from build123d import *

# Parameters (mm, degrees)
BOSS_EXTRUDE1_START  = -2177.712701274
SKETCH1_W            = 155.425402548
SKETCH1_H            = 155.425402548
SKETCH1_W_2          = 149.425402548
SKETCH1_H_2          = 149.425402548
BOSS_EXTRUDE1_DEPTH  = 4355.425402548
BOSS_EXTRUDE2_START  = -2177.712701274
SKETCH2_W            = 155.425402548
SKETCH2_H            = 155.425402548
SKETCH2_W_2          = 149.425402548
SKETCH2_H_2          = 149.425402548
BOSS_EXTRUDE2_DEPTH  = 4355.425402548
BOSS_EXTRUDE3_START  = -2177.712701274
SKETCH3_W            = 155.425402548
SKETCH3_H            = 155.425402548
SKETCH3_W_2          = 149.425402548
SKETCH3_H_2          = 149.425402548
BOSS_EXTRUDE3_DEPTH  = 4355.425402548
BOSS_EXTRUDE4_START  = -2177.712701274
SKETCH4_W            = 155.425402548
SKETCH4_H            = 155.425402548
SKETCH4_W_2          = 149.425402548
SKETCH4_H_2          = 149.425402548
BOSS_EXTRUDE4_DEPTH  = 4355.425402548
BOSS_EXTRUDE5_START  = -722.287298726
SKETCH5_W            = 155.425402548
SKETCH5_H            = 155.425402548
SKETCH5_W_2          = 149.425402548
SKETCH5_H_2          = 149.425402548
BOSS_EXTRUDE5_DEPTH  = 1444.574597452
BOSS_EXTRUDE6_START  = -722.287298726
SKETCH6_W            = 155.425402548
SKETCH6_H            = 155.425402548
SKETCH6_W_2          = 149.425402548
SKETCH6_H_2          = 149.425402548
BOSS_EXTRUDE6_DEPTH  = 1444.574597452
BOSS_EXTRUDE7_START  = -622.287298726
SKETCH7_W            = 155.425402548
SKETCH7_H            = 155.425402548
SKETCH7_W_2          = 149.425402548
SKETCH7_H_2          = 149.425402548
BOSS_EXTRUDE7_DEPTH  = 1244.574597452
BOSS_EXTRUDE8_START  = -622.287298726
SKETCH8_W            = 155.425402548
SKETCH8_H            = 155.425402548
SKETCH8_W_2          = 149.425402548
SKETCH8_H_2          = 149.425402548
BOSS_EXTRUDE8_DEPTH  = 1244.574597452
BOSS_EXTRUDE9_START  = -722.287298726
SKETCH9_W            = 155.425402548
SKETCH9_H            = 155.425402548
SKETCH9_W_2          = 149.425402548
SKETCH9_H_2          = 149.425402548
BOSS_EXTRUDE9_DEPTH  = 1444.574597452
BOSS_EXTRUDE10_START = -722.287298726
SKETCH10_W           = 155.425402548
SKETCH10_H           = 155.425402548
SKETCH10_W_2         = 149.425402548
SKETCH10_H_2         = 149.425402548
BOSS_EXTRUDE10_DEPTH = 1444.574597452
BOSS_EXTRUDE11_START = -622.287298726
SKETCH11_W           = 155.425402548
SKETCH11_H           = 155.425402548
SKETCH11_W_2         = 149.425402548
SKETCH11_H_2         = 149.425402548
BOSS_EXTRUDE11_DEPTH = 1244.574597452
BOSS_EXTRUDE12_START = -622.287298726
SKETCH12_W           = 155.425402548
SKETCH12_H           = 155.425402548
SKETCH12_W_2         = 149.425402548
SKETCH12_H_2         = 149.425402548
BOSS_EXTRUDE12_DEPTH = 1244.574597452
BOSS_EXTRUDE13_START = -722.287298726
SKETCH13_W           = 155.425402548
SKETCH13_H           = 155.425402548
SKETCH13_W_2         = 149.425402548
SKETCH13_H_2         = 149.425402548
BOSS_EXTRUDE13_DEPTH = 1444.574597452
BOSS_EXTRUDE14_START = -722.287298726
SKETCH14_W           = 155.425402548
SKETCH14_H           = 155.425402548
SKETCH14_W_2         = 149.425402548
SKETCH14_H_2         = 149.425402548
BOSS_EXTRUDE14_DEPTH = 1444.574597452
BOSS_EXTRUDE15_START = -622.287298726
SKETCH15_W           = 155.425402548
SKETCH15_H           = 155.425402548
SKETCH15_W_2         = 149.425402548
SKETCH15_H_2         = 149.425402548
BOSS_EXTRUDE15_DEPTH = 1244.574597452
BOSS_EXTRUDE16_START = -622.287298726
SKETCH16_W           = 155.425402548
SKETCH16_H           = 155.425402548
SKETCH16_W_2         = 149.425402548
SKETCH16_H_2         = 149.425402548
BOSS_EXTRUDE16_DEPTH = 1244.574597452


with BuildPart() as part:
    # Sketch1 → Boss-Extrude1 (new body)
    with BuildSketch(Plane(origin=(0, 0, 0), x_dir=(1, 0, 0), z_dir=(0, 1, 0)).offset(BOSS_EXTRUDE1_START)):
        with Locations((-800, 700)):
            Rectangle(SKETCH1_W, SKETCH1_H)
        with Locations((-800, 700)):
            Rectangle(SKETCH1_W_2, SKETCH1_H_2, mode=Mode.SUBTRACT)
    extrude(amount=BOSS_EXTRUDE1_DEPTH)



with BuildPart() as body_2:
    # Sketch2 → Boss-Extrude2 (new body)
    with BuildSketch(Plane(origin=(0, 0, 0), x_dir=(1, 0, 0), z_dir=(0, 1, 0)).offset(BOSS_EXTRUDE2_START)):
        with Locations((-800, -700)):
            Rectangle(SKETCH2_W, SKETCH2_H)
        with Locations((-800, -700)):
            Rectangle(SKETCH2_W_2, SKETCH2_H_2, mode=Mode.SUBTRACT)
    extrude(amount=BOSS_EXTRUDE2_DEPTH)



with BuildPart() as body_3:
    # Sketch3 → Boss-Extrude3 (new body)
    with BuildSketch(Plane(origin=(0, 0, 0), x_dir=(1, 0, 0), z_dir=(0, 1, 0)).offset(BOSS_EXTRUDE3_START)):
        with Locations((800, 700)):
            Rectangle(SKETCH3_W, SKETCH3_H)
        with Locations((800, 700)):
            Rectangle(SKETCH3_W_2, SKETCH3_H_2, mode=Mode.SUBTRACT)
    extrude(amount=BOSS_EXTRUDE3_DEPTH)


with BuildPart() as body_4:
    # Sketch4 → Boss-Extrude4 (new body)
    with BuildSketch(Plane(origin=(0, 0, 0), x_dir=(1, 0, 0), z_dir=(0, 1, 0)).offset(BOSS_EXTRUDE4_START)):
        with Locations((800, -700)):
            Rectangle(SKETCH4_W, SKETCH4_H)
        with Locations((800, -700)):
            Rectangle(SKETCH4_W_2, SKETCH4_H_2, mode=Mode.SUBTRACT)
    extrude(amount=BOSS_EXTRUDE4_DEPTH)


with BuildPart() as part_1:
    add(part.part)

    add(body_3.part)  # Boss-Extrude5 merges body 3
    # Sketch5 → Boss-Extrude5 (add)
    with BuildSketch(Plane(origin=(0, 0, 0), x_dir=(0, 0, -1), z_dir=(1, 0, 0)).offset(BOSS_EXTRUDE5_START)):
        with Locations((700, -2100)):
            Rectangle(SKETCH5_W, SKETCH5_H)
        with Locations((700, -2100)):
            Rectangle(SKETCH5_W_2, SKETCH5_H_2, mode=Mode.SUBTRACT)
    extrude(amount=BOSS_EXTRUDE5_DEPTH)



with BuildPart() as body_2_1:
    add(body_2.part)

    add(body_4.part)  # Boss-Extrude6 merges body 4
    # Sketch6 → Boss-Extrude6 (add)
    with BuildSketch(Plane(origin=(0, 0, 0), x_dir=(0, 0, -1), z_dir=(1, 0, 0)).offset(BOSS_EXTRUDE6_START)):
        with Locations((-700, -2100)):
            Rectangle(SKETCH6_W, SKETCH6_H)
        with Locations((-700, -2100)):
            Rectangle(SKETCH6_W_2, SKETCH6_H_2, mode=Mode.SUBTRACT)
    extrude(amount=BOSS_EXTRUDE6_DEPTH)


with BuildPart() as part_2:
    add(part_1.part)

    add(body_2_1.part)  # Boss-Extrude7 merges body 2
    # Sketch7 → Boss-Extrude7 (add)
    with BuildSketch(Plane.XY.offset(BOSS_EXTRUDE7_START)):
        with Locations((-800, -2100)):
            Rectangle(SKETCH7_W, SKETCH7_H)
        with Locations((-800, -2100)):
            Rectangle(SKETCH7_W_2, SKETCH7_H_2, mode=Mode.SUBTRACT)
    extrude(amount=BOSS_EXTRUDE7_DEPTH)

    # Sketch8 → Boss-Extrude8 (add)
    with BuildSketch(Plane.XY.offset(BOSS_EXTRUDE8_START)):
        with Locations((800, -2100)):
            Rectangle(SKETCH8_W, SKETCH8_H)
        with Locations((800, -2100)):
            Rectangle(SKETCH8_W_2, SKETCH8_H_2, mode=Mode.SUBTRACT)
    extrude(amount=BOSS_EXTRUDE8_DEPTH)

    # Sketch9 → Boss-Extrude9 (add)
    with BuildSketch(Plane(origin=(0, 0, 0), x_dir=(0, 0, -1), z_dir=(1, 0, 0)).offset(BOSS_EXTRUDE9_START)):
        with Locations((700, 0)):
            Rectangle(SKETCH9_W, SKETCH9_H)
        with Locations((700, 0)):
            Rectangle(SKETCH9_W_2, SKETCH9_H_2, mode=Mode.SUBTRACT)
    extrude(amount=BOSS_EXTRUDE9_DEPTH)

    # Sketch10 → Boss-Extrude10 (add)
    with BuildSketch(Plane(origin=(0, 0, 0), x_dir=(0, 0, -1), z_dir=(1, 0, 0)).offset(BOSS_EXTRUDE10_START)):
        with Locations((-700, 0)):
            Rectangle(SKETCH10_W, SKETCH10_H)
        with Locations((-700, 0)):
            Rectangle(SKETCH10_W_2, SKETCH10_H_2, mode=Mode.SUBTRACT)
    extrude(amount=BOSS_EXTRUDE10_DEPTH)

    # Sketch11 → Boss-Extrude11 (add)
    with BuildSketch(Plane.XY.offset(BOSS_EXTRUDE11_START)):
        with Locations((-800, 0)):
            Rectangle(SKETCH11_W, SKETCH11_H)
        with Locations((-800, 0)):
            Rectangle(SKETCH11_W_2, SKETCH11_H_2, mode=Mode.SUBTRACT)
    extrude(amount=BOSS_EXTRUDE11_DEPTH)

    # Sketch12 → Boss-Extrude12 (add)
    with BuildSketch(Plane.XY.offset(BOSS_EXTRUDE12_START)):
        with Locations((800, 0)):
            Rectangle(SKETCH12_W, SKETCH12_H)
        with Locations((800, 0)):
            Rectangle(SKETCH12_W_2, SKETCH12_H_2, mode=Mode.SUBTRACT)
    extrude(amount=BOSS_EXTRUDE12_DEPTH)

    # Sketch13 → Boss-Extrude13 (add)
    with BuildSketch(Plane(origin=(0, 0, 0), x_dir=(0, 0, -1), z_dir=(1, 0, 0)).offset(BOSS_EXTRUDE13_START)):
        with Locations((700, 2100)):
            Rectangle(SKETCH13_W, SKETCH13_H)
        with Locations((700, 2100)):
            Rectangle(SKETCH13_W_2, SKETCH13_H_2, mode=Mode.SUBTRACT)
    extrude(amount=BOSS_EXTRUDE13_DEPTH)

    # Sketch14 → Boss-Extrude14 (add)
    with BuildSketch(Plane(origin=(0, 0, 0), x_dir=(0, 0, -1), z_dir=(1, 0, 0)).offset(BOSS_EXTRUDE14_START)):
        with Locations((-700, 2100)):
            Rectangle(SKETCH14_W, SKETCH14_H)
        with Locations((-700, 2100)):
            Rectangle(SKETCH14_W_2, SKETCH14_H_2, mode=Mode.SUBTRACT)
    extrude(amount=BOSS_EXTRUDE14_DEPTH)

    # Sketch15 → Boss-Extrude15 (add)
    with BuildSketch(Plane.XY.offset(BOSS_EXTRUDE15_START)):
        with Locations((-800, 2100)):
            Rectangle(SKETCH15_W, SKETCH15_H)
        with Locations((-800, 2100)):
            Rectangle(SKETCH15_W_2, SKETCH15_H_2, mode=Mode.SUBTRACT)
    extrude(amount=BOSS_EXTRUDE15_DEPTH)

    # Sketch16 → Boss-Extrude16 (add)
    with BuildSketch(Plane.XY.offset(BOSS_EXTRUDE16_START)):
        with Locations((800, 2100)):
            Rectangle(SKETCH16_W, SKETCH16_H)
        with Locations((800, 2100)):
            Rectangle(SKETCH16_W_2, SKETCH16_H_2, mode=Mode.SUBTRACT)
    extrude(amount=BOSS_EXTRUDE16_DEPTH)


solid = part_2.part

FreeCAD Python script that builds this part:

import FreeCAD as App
import Part
import Sketcher
Q = App.Units.Quantity


def add_polygon(sketch, points):
    """Adds a closed chain of lines whose ends are joined by coincident constraints."""
    first, n = sketch.GeometryCount, len(points)
    for a, b in zip(points, points[1:] + points[:1]):
        sketch.addGeometry(Part.LineSegment(App.Vector(*a, 0), App.Vector(*b, 0)), False)
    for i in range(n):
        sketch.addConstraint(Sketcher.Constraint("Coincident", first + i, 2, first + (i + 1) % n, 1))

doc = App.newDocument("Part")
params = doc.addObject("Spreadsheet::Sheet", "Params")
for row, (alias, value) in enumerate([
    ("pad1_length", "4355.425403 mm"),
    ("pad2_length", "4355.425403 mm"),
    ("pad3_length", "4355.425403 mm"),
    ("pad4_length", "4355.425403 mm"),
    ("pad5_length", "1444.574597 mm"),
    ("pad6_length", "1444.574597 mm"),
    ("pad7_length", "48.9989999 in"),
    ("pad8_length", "48.9989999 in"),
    ("pad9_length", "1444.574597 mm"),
    ("pad10_length", "1444.574597 mm"),
    ("pad11_length", "48.9989999 in"),
    ("pad12_length", "48.9989999 in"),
    ("pad13_length", "1444.574597 mm"),
    ("pad14_length", "1444.574597 mm"),
    ("pad15_length", "48.9989999 in"),
    ("pad16_length", "48.9989999 in"),
], start=1):
    params.set(f"A{row}", alias)
    params.set(f"B{row}", "=" + value)
    params.setAlias(f"B{row}", alias)

body = doc.addObject("PartDesign::Body", "Body")

sketch1 = body.newObject("Sketcher::SketchObject", "Sketch")
sketch1.AttachmentSupport = (doc.getObject("XZ_Plane"), [""])
sketch1.MapMode = "FlatFace"
sketch1.AttachmentOffset = App.Placement(App.Vector(0, 0, 2177.712701), App.Rotation())
add_polygon(sketch1, [(-877.712701, -777.712701), (-877.712701, -622.287299), (-722.287299, -622.287299), (-722.287299, -777.712701)])
add_polygon(sketch1, [(-725.287299, -625.287299), (-874.712701, -625.287299), (-874.712701, -774.712701), (-725.287299, -774.712701)])
sketch1.addConstraint(Sketcher.Constraint("Vertical", 0))
sketch1.addConstraint(Sketcher.Constraint("Horizontal", 1))
sketch1.addConstraint(Sketcher.Constraint("Vertical", 2))
sketch1.addConstraint(Sketcher.Constraint("Horizontal", 3))
sketch1.addConstraint(Sketcher.Constraint("Horizontal", 4))
sketch1.addConstraint(Sketcher.Constraint("Vertical", 5))
sketch1.addConstraint(Sketcher.Constraint("Horizontal", 6))
sketch1.addConstraint(Sketcher.Constraint("Vertical", 7))
sketch1.addConstraint(Sketcher.Constraint("Equal", 3, 0))
sketch1.addConstraint(Sketcher.Constraint("Equal", 6, 5))
sketch1.addConstraint(Sketcher.Constraint("DistanceX", 4, 2, 1, 2, Q("6.0010001 in")))
sketch1.addConstraint(Sketcher.Constraint("DistanceY", 3, 2, 4, 2, Q("6.0010001 in")))
sketch1.addConstraint(Sketcher.Constraint("DistanceY", 5, 2, 0, 2, Q("6.0010001 in")))
sketch1.addConstraint(Sketcher.Constraint("DistanceY", 0, 2, -1, 1, Q("24.4994999 in")))
sketch1.addConstraint(Sketcher.Constraint("DistanceX", 0, 2, -1, 1, 877.712701))
sketch1.addConstraint(Sketcher.Constraint("DistanceX", 1, 2, -1, 1, 722.287299))
pad1 = body.newObject("PartDesign::Pad", "Pad")
pad1.Profile = sketch1
pad1.setExpression("Length", "Params.pad1_length")
pad1.Reversed = True
body2 = doc.addObject("PartDesign::Body", "Body001")

sketch2 = body2.newObject("Sketcher::SketchObject", "Sketch001")
sketch2.AttachmentSupport = (doc.getObject("XZ_Plane001"), [""])
sketch2.MapMode = "FlatFace"
sketch2.AttachmentOffset = App.Placement(App.Vector(0, 0, 2177.712701), App.Rotation())
add_polygon(sketch2, [(-877.712701, 622.287299), (-877.712701, 777.712701), (-722.287299, 777.712701), (-722.287299, 622.287299)])
add_polygon(sketch2, [(-725.287299, 774.712701), (-874.712701, 774.712701), (-874.712701, 625.287299), (-725.287299, 625.287299)])
sketch2.addConstraint(Sketcher.Constraint("Vertical", 0))
sketch2.addConstraint(Sketcher.Constraint("Horizontal", 1))
sketch2.addConstraint(Sketcher.Constraint("Vertical", 2))
sketch2.addConstraint(Sketcher.Constraint("Horizontal", 3))
sketch2.addConstraint(Sketcher.Constraint("Horizontal", 4))
sketch2.addConstraint(Sketcher.Constraint("Vertical", 5))
sketch2.addConstraint(Sketcher.Constraint("Horizontal", 6))
sketch2.addConstraint(Sketcher.Constraint("Vertical", 7))
sketch2.addConstraint(Sketcher.Constraint("Equal", 3, 0))
sketch2.addConstraint(Sketcher.Constraint("Equal", 6, 5))
sketch2.addConstraint(Sketcher.Constraint("DistanceX", 4, 2, 1, 2, Q("6.0010001 in")))
sketch2.addConstraint(Sketcher.Constraint("DistanceY", 3, 2, 4, 2, Q("6.0010001 in")))
sketch2.addConstraint(Sketcher.Constraint("DistanceY", 5, 2, 0, 2, Q("6.0010001 in")))
sketch2.addConstraint(Sketcher.Constraint("DistanceY", -1, 1, 2, 2, Q("24.4994999 in")))
sketch2.addConstraint(Sketcher.Constraint("DistanceX", 0, 2, -1, 1, 877.712701))
sketch2.addConstraint(Sketcher.Constraint("DistanceY", -1, 1, 0, 2, 777.712701))
pad2 = body2.newObject("PartDesign::Pad", "Pad001")
pad2.Profile = sketch2
pad2.setExpression("Length", "Params.pad2_length")
pad2.Reversed = True
body3 = doc.addObject("PartDesign::Body", "Body002")

sketch3 = body3.newObject("Sketcher::SketchObject", "Sketch002")
sketch3.AttachmentSupport = (doc.getObject("XZ_Plane002"), [""])
sketch3.MapMode = "FlatFace"
sketch3.AttachmentOffset = App.Placement(App.Vector(0, 0, 2177.712701), App.Rotation())
add_polygon(sketch3, [(722.287299, -777.712701), (722.287299, -622.287299), (877.712701, -622.287299), (877.712701, -777.712701)])
add_polygon(sketch3, [(874.712701, -625.287299), (725.287299, -625.287299), (725.287299, -774.712701), (874.712701, -774.712701)])
sketch3.addConstraint(Sketcher.Constraint("Vertical", 0))
sketch3.addConstraint(Sketcher.Constraint("Horizontal", 1))
sketch3.addConstraint(Sketcher.Constraint("Vertical", 2))
sketch3.addConstraint(Sketcher.Constraint("Horizontal", 3))
sketch3.addConstraint(Sketcher.Constraint("Horizontal", 4))
sketch3.addConstraint(Sketcher.Constraint("Vertical", 5))
sketch3.addConstraint(Sketcher.Constraint("Horizontal", 6))
sketch3.addConstraint(Sketcher.Constraint("Vertical", 7))
sketch3.addConstraint(Sketcher.Constraint("Equal", 3, 0))
sketch3.addConstraint(Sketcher.Constraint("Equal", 6, 5))
sketch3.addConstraint(Sketcher.Constraint("DistanceX", 4, 2, 1, 2, Q("6.0010001 in")))
sketch3.addConstraint(Sketcher.Constraint("DistanceY", 3, 2, 4, 2, Q("6.0010001 in")))
sketch3.addConstraint(Sketcher.Constraint("DistanceY", 5, 2, 0, 2, Q("6.0010001 in")))
sketch3.addConstraint(Sketcher.Constraint("DistanceY", 0, 2, -1, 1, Q("24.4994999 in")))
sketch3.addConstraint(Sketcher.Constraint("DistanceX", -1, 1, 0, 2, 722.287299))
sketch3.addConstraint(Sketcher.Constraint("DistanceX", -1, 1, 1, 2, 877.712701))
pad3 = body3.newObject("PartDesign::Pad", "Pad002")
pad3.Profile = sketch3
pad3.setExpression("Length", "Params.pad3_length")
pad3.Reversed = True
body4 = doc.addObject("PartDesign::Body", "Body003")

sketch4 = body4.newObject("Sketcher::SketchObject", "Sketch003")
sketch4.AttachmentSupport = (doc.getObject("XZ_Plane003"), [""])
sketch4.MapMode = "FlatFace"
sketch4.AttachmentOffset = App.Placement(App.Vector(0, 0, 2177.712701), App.Rotation())
add_polygon(sketch4, [(722.287299, 622.287299), (722.287299, 777.712701), (877.712701, 777.712701), (877.712701, 622.287299)])
add_polygon(sketch4, [(874.712701, 774.712701), (725.287299, 774.712701), (725.287299, 625.287299), (874.712701, 625.287299)])
sketch4.addConstraint(Sketcher.Constraint("Vertical", 0))
sketch4.addConstraint(Sketcher.Constraint("Horizontal", 1))
sketch4.addConstraint(Sketcher.Constraint("Vertical", 2))
sketch4.addConstraint(Sketcher.Constraint("Horizontal", 3))
sketch4.addConstraint(Sketcher.Constraint("Horizontal", 4))
sketch4.addConstraint(Sketcher.Constraint("Vertical", 5))
sketch4.addConstraint(Sketcher.Constraint("Horizontal", 6))
sketch4.addConstraint(Sketcher.Constraint("Vertical", 7))
sketch4.addConstraint(Sketcher.Constraint("Equal", 3, 0))
sketch4.addConstraint(Sketcher.Constraint("Equal", 6, 5))
sketch4.addConstraint(Sketcher.Constraint("DistanceX", 4, 2, 1, 2, Q("6.0010001 in")))
sketch4.addConstraint(Sketcher.Constraint("DistanceY", 3, 2, 4, 2, Q("6.0010001 in")))
sketch4.addConstraint(Sketcher.Constraint("DistanceY", 5, 2, 0, 2, Q("6.0010001 in")))
sketch4.addConstraint(Sketcher.Constraint("DistanceY", -1, 1, 2, 2, Q("24.4994999 in")))
sketch4.addConstraint(Sketcher.Constraint("DistanceX", -1, 1, 0, 2, 722.287299))
sketch4.addConstraint(Sketcher.Constraint("DistanceY", -1, 1, 0, 2, 777.712701))
pad4 = body4.newObject("PartDesign::Pad", "Pad003")
pad4.Profile = sketch4
pad4.setExpression("Length", "Params.pad4_length")
pad4.Reversed = True
body.AllowCompound = True
doc.recompute()

boolean = body.newObject("PartDesign::Boolean", "Boolean")
boolean.Type = "Fuse"
boolean.addObjects([body3])

sketch5 = body.newObject("Sketcher::SketchObject", "Sketch004")
sketch5.AttachmentSupport = (doc.getObject("YZ_Plane"), [""])
sketch5.MapMode = "FlatFace"
sketch5.AttachmentOffset = App.Placement(App.Vector(0, 0, -722.287299), App.Rotation())
add_polygon(sketch5, [(-2022.287299, -622.287299), (-2177.712701, -622.287299), (-2177.712701, -777.712701), (-2022.287299, -777.712701)])
add_polygon(sketch5, [(-2174.712701, -774.712701), (-2174.712701, -625.287299), (-2025.287299, -625.287299), (-2025.287299, -774.712701)])
sketch5.addConstraint(Sketcher.Constraint("Horizontal", 0))
sketch5.addConstraint(Sketcher.Constraint("Vertical", 1))
sketch5.addConstraint(Sketcher.Constraint("Horizontal", 2))
sketch5.addConstraint(Sketcher.Constraint("Vertical", 3))
sketch5.addConstraint(Sketcher.Constraint("Vertical", 4))
sketch5.addConstraint(Sketcher.Constraint("Horizontal", 5))
sketch5.addConstraint(Sketcher.Constraint("Vertical", 6))
sketch5.addConstraint(Sketcher.Constraint("Horizontal", 7))
sketch5.addConstraint(Sketcher.Constraint("Equal", 2, 1))
sketch5.addConstraint(Sketcher.Constraint("Equal", 7, 4))
sketch5.addConstraint(Sketcher.Constraint("DistanceY", 1, 2, 4, 2, Q("6.0010001 in")))
sketch5.addConstraint(Sketcher.Constraint("DistanceX", 4, 2, 3, 2, Q("6.0010001 in")))
sketch5.addConstraint(Sketcher.Constraint("DistanceX", 0, 2, 5, 2, Q("6.0010001 in")))
sketch5.addConstraint(Sketcher.Constraint("DistanceY", 0, 2, -1, 1, Q("24.4994999 in")))
sketch5.addConstraint(Sketcher.Constraint("DistanceX", 0, 2, -1, 1, 2177.712701))
sketch5.addConstraint(Sketcher.Constraint("DistanceY", 1, 2, -1, 1, 777.712701))
pad5 = body.newObject("PartDesign::Pad", "Pad004")
pad5.Profile = sketch5
pad5.setExpression("Length", "Params.pad5_length")
body2.AllowCompound = True
doc.recompute()

boolean2 = body2.newObject("PartDesign::Boolean", "Boolean001")
boolean2.Type = "Fuse"
boolean2.addObjects([body4])

sketch6 = body2.newObject("Sketcher::SketchObject", "Sketch005")
sketch6.AttachmentSupport = (doc.getObject("YZ_Plane001"), [""])
sketch6.MapMode = "FlatFace"
sketch6.AttachmentOffset = App.Placement(App.Vector(0, 0, -722.287299), App.Rotation())
add_polygon(sketch6, [(-2022.287299, 777.712701), (-2177.712701, 777.712701), (-2177.712701, 622.287299), (-2022.287299, 622.287299)])
add_polygon(sketch6, [(-2174.712701, 625.287299), (-2174.712701, 774.712701), (-2025.287299, 774.712701), (-2025.287299, 625.287299)])
sketch6.addConstraint(Sketcher.Constraint("Horizontal", 0))
sketch6.addConstraint(Sketcher.Constraint("Vertical", 1))
sketch6.addConstraint(Sketcher.Constraint("Horizontal", 2))
sketch6.addConstraint(Sketcher.Constraint("Vertical", 3))
sketch6.addConstraint(Sketcher.Constraint("Vertical", 4))
sketch6.addConstraint(Sketcher.Constraint("Horizontal", 5))
sketch6.addConstraint(Sketcher.Constraint("Vertical", 6))
sketch6.addConstraint(Sketcher.Constraint("Horizontal", 7))
sketch6.addConstraint(Sketcher.Constraint("Equal", 2, 1))
sketch6.addConstraint(Sketcher.Constraint("Equal", 7, 4))
sketch6.addConstraint(Sketcher.Constraint("DistanceY", 1, 2, 4, 2, Q("6.0010001 in")))
sketch6.addConstraint(Sketcher.Constraint("DistanceX", 4, 2, 3, 2, Q("6.0010001 in")))
sketch6.addConstraint(Sketcher.Constraint("DistanceX", 0, 2, 5, 2, Q("6.0010001 in")))
sketch6.addConstraint(Sketcher.Constraint("DistanceY", -1, 1, 1, 2, Q("24.4994999 in")))
sketch6.addConstraint(Sketcher.Constraint("DistanceX", 0, 2, -1, 1, 2177.712701))
sketch6.addConstraint(Sketcher.Constraint("DistanceY", -1, 1, 0, 2, 777.712701))
pad6 = body2.newObject("PartDesign::Pad", "Pad005")
pad6.Profile = sketch6
pad6.setExpression("Length", "Params.pad6_length")
body.AllowCompound = True
doc.recompute()

boolean3 = body.newObject("PartDesign::Boolean", "Boolean002")
boolean3.Type = "Fuse"
boolean3.addObjects([body2])

sketch7 = body.newObject("Sketcher::SketchObject", "Sketch006")
sketch7.AttachmentSupport = (doc.getObject("XY_Plane"), [""])
sketch7.MapMode = "FlatFace"
sketch7.AttachmentOffset = App.Placement(App.Vector(0, 0, -24.4994999 * 25.4), App.Rotation())
add_polygon(sketch7, [(-877.712701, -2022.287299), (-877.712701, -2177.712701), (-722.287299, -2177.712701), (-722.287299, -2022.287299)])
add_polygon(sketch7, [(-725.287299, -2174.712701), (-874.712701, -2174.712701), (-874.712701, -2025.287299), (-725.287299, -2025.287299)])
sketch7.addConstraint(Sketcher.Constraint("Vertical", 0))
sketch7.addConstraint(Sketcher.Constraint("Horizontal", 1))
sketch7.addConstraint(Sketcher.Constraint("Vertical", 2))
sketch7.addConstraint(Sketcher.Constraint("Horizontal", 3))
sketch7.addConstraint(Sketcher.Constraint("Horizontal", 4))
sketch7.addConstraint(Sketcher.Constraint("Vertical", 5))
sketch7.addConstraint(Sketcher.Constraint("Horizontal", 6))
sketch7.addConstraint(Sketcher.Constraint("Vertical", 7))
sketch7.addConstraint(Sketcher.Constraint("Equal", 3, 0))
sketch7.addConstraint(Sketcher.Constraint("Equal", 6, 5))
sketch7.addConstraint(Sketcher.Constraint("DistanceX", 4, 2, 1, 2, Q("6.0010001 in")))
sketch7.addConstraint(Sketcher.Constraint("DistanceY", 4, 2, 3, 2, Q("6.0010001 in")))
sketch7.addConstraint(Sketcher.Constraint("DistanceY", 0, 2, 5, 2, Q("6.0010001 in")))
sketch7.addConstraint(Sketcher.Constraint("DistanceX", 0, 2, -1, 1, 877.712701))
sketch7.addConstraint(Sketcher.Constraint("DistanceY", 0, 2, -1, 1, 2177.712701))
sketch7.addConstraint(Sketcher.Constraint("DistanceX", 1, 2, -1, 1, 722.287299))
pad7 = body.newObject("PartDesign::Pad", "Pad006")
pad7.Profile = sketch7
pad7.setExpression("Length", "Params.pad7_length")

sketch8 = body.newObject("Sketcher::SketchObject", "Sketch007")
sketch8.AttachmentSupport = (doc.getObject("XY_Plane"), [""])
sketch8.MapMode = "FlatFace"
sketch8.AttachmentOffset = App.Placement(App.Vector(0, 0, -24.4994999 * 25.4), App.Rotation())
add_polygon(sketch8, [(722.287299, -2022.287299), (722.287299, -2177.712701), (877.712701, -2177.712701), (877.712701, -2022.287299)])
add_polygon(sketch8, [(874.712701, -2174.712701), (725.287299, -2174.712701), (725.287299, -2025.287299), (874.712701, -2025.287299)])
sketch8.addConstraint(Sketcher.Constraint("Vertical", 0))
sketch8.addConstraint(Sketcher.Constraint("Horizontal", 1))
sketch8.addConstraint(Sketcher.Constraint("Vertical", 2))
sketch8.addConstraint(Sketcher.Constraint("Horizontal", 3))
sketch8.addConstraint(Sketcher.Constraint("Horizontal", 4))
sketch8.addConstraint(Sketcher.Constraint("Vertical", 5))
sketch8.addConstraint(Sketcher.Constraint("Horizontal", 6))
sketch8.addConstraint(Sketcher.Constraint("Vertical", 7))
sketch8.addConstraint(Sketcher.Constraint("Equal", 3, 0))
sketch8.addConstraint(Sketcher.Constraint("Equal", 6, 5))
sketch8.addConstraint(Sketcher.Constraint("DistanceX", 4, 2, 1, 2, Q("6.0010001 in")))
sketch8.addConstraint(Sketcher.Constraint("DistanceY", 4, 2, 3, 2, Q("6.0010001 in")))
sketch8.addConstraint(Sketcher.Constraint("DistanceY", 0, 2, 5, 2, Q("6.0010001 in")))
sketch8.addConstraint(Sketcher.Constraint("DistanceX", -1, 1, 0, 2, 722.287299))
sketch8.addConstraint(Sketcher.Constraint("DistanceY", 0, 2, -1, 1, 2177.712701))
sketch8.addConstraint(Sketcher.Constraint("DistanceX", -1, 1, 1, 2, 877.712701))
pad8 = body.newObject("PartDesign::Pad", "Pad007")
pad8.Profile = sketch8
pad8.setExpression("Length", "Params.pad8_length")

sketch9 = body.newObject("Sketcher::SketchObject", "Sketch008")
sketch9.AttachmentSupport = (doc.getObject("YZ_Plane"), [""])
sketch9.MapMode = "FlatFace"
sketch9.AttachmentOffset = App.Placement(App.Vector(0, 0, -722.287299), App.Rotation())
add_polygon(sketch9, [(77.712701, -622.287299), (-77.712701, -622.287299), (-77.712701, -777.712701), (77.712701, -777.712701)])
add_polygon(sketch9, [(-74.712701, -774.712701), (-74.712701, -625.287299), (74.712701, -625.287299), (74.712701, -774.712701)])
sketch9.addConstraint(Sketcher.Constraint("Horizontal", 0))
sketch9.addConstraint(Sketcher.Constraint("Vertical", 1))
sketch9.addConstraint(Sketcher.Constraint("Horizontal", 2))
sketch9.addConstraint(Sketcher.Constraint("Vertical", 3))
sketch9.addConstraint(Sketcher.Constraint("Vertical", 4))
sketch9.addConstraint(Sketcher.Constraint("Horizontal", 5))
sketch9.addConstraint(Sketcher.Constraint("Vertical", 6))
sketch9.addConstraint(Sketcher.Constraint("Horizontal", 7))
sketch9.addConstraint(Sketcher.Constraint("Equal", 2, 1))
sketch9.addConstraint(Sketcher.Constraint("Equal", 7, 4))
sketch9.addConstraint(Sketcher.Constraint("DistanceY", 1, 2, 4, 2, Q("6.0010001 in")))
sketch9.addConstraint(Sketcher.Constraint("DistanceX", 4, 2, 3, 2, Q("6.0010001 in")))
sketch9.addConstraint(Sketcher.Constraint("DistanceX", 0, 2, 5, 2, Q("6.0010001 in")))
sketch9.addConstraint(Sketcher.Constraint("DistanceY", 0, 2, -1, 1, Q("24.4994999 in")))
sketch9.addConstraint(Sketcher.Constraint("DistanceX", 0, 2, -1, 1, 77.712701))
sketch9.addConstraint(Sketcher.Constraint("DistanceY", 1, 2, -1, 1, 777.712701))
pad9 = body.newObject("PartDesign::Pad", "Pad008")
pad9.Profile = sketch9
pad9.setExpression("Length", "Params.pad9_length")

sketch10 = body.newObject("Sketcher::SketchObject", "Sketch009")
sketch10.AttachmentSupport = (doc.getObject("YZ_Plane"), [""])
sketch10.MapMode = "FlatFace"
sketch10.AttachmentOffset = App.Placement(App.Vector(0, 0, -722.287299), App.Rotation())
add_polygon(sketch10, [(77.712701, 777.712701), (-77.712701, 777.712701), (-77.712701, 622.287299), (77.712701, 622.287299)])
add_polygon(sketch10, [(-74.712701, 625.287299), (-74.712701, 774.712701), (74.712701, 774.712701), (74.712701, 625.287299)])
sketch10.addConstraint(Sketcher.Constraint("Horizontal", 0))
sketch10.addConstraint(Sketcher.Constraint("Vertical", 1))
sketch10.addConstraint(Sketcher.Constraint("Horizontal", 2))
sketch10.addConstraint(Sketcher.Constraint("Vertical", 3))
sketch10.addConstraint(Sketcher.Constraint("Vertical", 4))
sketch10.addConstraint(Sketcher.Constraint("Horizontal", 5))
sketch10.addConstraint(Sketcher.Constraint("Vertical", 6))
sketch10.addConstraint(Sketcher.Constraint("Horizontal", 7))
sketch10.addConstraint(Sketcher.Constraint("Equal", 2, 1))
sketch10.addConstraint(Sketcher.Constraint("Equal", 7, 4))
sketch10.addConstraint(Sketcher.Constraint("DistanceY", 1, 2, 4, 2, Q("6.0010001 in")))
sketch10.addConstraint(Sketcher.Constraint("DistanceX", 4, 2, 3, 2, Q("6.0010001 in")))
sketch10.addConstraint(Sketcher.Constraint("DistanceX", 0, 2, 5, 2, Q("6.0010001 in")))
sketch10.addConstraint(Sketcher.Constraint("DistanceY", -1, 1, 1, 2, Q("24.4994999 in")))
sketch10.addConstraint(Sketcher.Constraint("DistanceX", 0, 2, -1, 1, 77.712701))
sketch10.addConstraint(Sketcher.Constraint("DistanceY", -1, 1, 0, 2, 777.712701))
pad10 = body.newObject("PartDesign::Pad", "Pad009")
pad10.Profile = sketch10
pad10.setExpression("Length", "Params.pad10_length")

sketch11 = body.newObject("Sketcher::SketchObject", "Sketch010")
sketch11.AttachmentSupport = (doc.getObject("XY_Plane"), [""])
sketch11.MapMode = "FlatFace"
sketch11.AttachmentOffset = App.Placement(App.Vector(0, 0, -24.4994999 * 25.4), App.Rotation())
add_polygon(sketch11, [(-877.712701, 77.712701), (-877.712701, -77.712701), (-722.287299, -77.712701), (-722.287299, 77.712701)])
add_polygon(sketch11, [(-725.287299, -74.712701), (-874.712701, -74.712701), (-874.712701, 74.712701), (-725.287299, 74.712701)])
sketch11.addConstraint(Sketcher.Constraint("Vertical", 0))
sketch11.addConstraint(Sketcher.Constraint("Horizontal", 1))
sketch11.addConstraint(Sketcher.Constraint("Vertical", 2))
sketch11.addConstraint(Sketcher.Constraint("Horizontal", 3))
sketch11.addConstraint(Sketcher.Constraint("Horizontal", 4))
sketch11.addConstraint(Sketcher.Constraint("Vertical", 5))
sketch11.addConstraint(Sketcher.Constraint("Horizontal", 6))
sketch11.addConstraint(Sketcher.Constraint("Vertical", 7))
sketch11.addConstraint(Sketcher.Constraint("Equal", 3, 0))
sketch11.addConstraint(Sketcher.Constraint("Equal", 6, 5))
sketch11.addConstraint(Sketcher.Constraint("DistanceX", 4, 2, 1, 2, Q("6.0010001 in")))
sketch11.addConstraint(Sketcher.Constraint("DistanceY", 4, 2, 3, 2, Q("6.0010001 in")))
sketch11.addConstraint(Sketcher.Constraint("DistanceY", 0, 2, 5, 2, Q("6.0010001 in")))
sketch11.addConstraint(Sketcher.Constraint("DistanceX", 0, 2, -1, 1, 877.712701))
sketch11.addConstraint(Sketcher.Constraint("DistanceY", 0, 2, -1, 1, 77.712701))
sketch11.addConstraint(Sketcher.Constraint("DistanceX", 1, 2, -1, 1, 722.287299))
pad11 = body.newObject("PartDesign::Pad", "Pad010")
pad11.Profile = sketch11
pad11.setExpression("Length", "Params.pad11_length")

sketch12 = body.newObject("Sketcher::SketchObject", "Sketch011")
sketch12.AttachmentSupport = (doc.getObject("XY_Plane"), [""])
sketch12.MapMode = "FlatFace"
sketch12.AttachmentOffset = App.Placement(App.Vector(0, 0, -24.4994999 * 25.4), App.Rotation())
add_polygon(sketch12, [(722.287299, 77.712701), (722.287299, -77.712701), (877.712701, -77.712701), (877.712701, 77.712701)])
add_polygon(sketch12, [(874.712701, -74.712701), (725.287299, -74.712701), (725.287299, 74.712701), (874.712701, 74.712701)])
sketch12.addConstraint(Sketcher.Constraint("Vertical", 0))
sketch12.addConstraint(Sketcher.Constraint("Horizontal", 1))
sketch12.addConstraint(Sketcher.Constraint("Vertical", 2))
sketch12.addConstraint(Sketcher.Constraint("Horizontal", 3))
sketch12.addConstraint(Sketcher.Constraint("Horizontal", 4))
sketch12.addConstraint(Sketcher.Constraint("Vertical", 5))
sketch12.addConstraint(Sketcher.Constraint("Horizontal", 6))
sketch12.addConstraint(Sketcher.Constraint("Vertical", 7))
sketch12.addConstraint(Sketcher.Constraint("Equal", 3, 0))
sketch12.addConstraint(Sketcher.Constraint("Equal", 6, 5))
sketch12.addConstraint(Sketcher.Constraint("DistanceX", 4, 2, 1, 2, Q("6.0010001 in")))
sketch12.addConstraint(Sketcher.Constraint("DistanceY", 4, 2, 3, 2, Q("6.0010001 in")))
sketch12.addConstraint(Sketcher.Constraint("DistanceY", 0, 2, 5, 2, Q("6.0010001 in")))
sketch12.addConstraint(Sketcher.Constraint("DistanceX", -1, 1, 0, 2, 722.287299))
sketch12.addConstraint(Sketcher.Constraint("DistanceY", 0, 2, -1, 1, 77.712701))
sketch12.addConstraint(Sketcher.Constraint("DistanceX", -1, 1, 1, 2, 877.712701))
pad12 = body.newObject("PartDesign::Pad", "Pad011")
pad12.Profile = sketch12
pad12.setExpression("Length", "Params.pad12_length")

sketch13 = body.newObject("Sketcher::SketchObject", "Sketch012")
sketch13.AttachmentSupport = (doc.getObject("YZ_Plane"), [""])
sketch13.MapMode = "FlatFace"
sketch13.AttachmentOffset = App.Placement(App.Vector(0, 0, -722.287299), App.Rotation())
add_polygon(sketch13, [(2177.712701, -622.287299), (2022.287299, -622.287299), (2022.287299, -777.712701), (2177.712701, -777.712701)])
add_polygon(sketch13, [(2025.287299, -774.712701), (2025.287299, -625.287299), (2174.712701, -625.287299), (2174.712701, -774.712701)])
sketch13.addConstraint(Sketcher.Constraint("Horizontal", 0))
sketch13.addConstraint(Sketcher.Constraint("Vertical", 1))
sketch13.addConstraint(Sketcher.Constraint("Horizontal", 2))
sketch13.addConstraint(Sketcher.Constraint("Vertical", 3))
sketch13.addConstraint(Sketcher.Constraint("Vertical", 4))
sketch13.addConstraint(Sketcher.Constraint("Horizontal", 5))
sketch13.addConstraint(Sketcher.Constraint("Vertical", 6))
sketch13.addConstraint(Sketcher.Constraint("Horizontal", 7))
sketch13.addConstraint(Sketcher.Constraint("Equal", 2, 1))
sketch13.addConstraint(Sketcher.Constraint("Equal", 7, 4))
sketch13.addConstraint(Sketcher.Constraint("DistanceY", 1, 2, 4, 2, Q("6.0010001 in")))
sketch13.addConstraint(Sketcher.Constraint("DistanceX", 4, 2, 3, 2, Q("6.0010001 in")))
sketch13.addConstraint(Sketcher.Constraint("DistanceX", 0, 2, 5, 2, Q("6.0010001 in")))
sketch13.addConstraint(Sketcher.Constraint("DistanceY", 0, 2, -1, 1, Q("24.4994999 in")))
sketch13.addConstraint(Sketcher.Constraint("DistanceX", -1, 1, 0, 2, 2022.287299))
sketch13.addConstraint(Sketcher.Constraint("DistanceY", 1, 2, -1, 1, 777.712701))
pad13 = body.newObject("PartDesign::Pad", "Pad012")
pad13.Profile = sketch13
pad13.setExpression("Length", "Params.pad13_length")

sketch14 = body.newObject("Sketcher::SketchObject", "Sketch013")
sketch14.AttachmentSupport = (doc.getObject("YZ_Plane"), [""])
sketch14.MapMode = "FlatFace"
sketch14.AttachmentOffset = App.Placement(App.Vector(0, 0, -722.287299), App.Rotation())
add_polygon(sketch14, [(2177.712701, 777.712701), (2022.287299, 777.712701), (2022.287299, 622.287299), (2177.712701, 622.287299)])
add_polygon(sketch14, [(2025.287299, 625.287299), (2025.287299, 774.712701), (2174.712701, 774.712701), (2174.712701, 625.287299)])
sketch14.addConstraint(Sketcher.Constraint("Horizontal", 0))
sketch14.addConstraint(Sketcher.Constraint("Vertical", 1))
sketch14.addConstraint(Sketcher.Constraint("Horizontal", 2))
sketch14.addConstraint(Sketcher.Constraint("Vertical", 3))
sketch14.addConstraint(Sketcher.Constraint("Vertical", 4))
sketch14.addConstraint(Sketcher.Constraint("Horizontal", 5))
sketch14.addConstraint(Sketcher.Constraint("Vertical", 6))
sketch14.addConstraint(Sketcher.Constraint("Horizontal", 7))
sketch14.addConstraint(Sketcher.Constraint("Equal", 2, 1))
sketch14.addConstraint(Sketcher.Constraint("Equal", 7, 4))
sketch14.addConstraint(Sketcher.Constraint("DistanceY", 1, 2, 4, 2, Q("6.0010001 in")))
sketch14.addConstraint(Sketcher.Constraint("DistanceX", 4, 2, 3, 2, Q("6.0010001 in")))
sketch14.addConstraint(Sketcher.Constraint("DistanceX", 0, 2, 5, 2, Q("6.0010001 in")))
sketch14.addConstraint(Sketcher.Constraint("DistanceY", -1, 1, 1, 2, Q("24.4994999 in")))
sketch14.addConstraint(Sketcher.Constraint("DistanceX", -1, 1, 0, 2, 2022.287299))
sketch14.addConstraint(Sketcher.Constraint("DistanceY", -1, 1, 0, 2, 777.712701))
pad14 = body.newObject("PartDesign::Pad", "Pad013")
pad14.Profile = sketch14
pad14.setExpression("Length", "Params.pad14_length")

sketch15 = body.newObject("Sketcher::SketchObject", "Sketch014")
sketch15.AttachmentSupport = (doc.getObject("XY_Plane"), [""])
sketch15.MapMode = "FlatFace"
sketch15.AttachmentOffset = App.Placement(App.Vector(0, 0, -24.4994999 * 25.4), App.Rotation())
add_polygon(sketch15, [(-877.712701, 2177.712701), (-877.712701, 2022.287299), (-722.287299, 2022.287299), (-722.287299, 2177.712701)])
add_polygon(sketch15, [(-725.287299, 2025.287299), (-874.712701, 2025.287299), (-874.712701, 2174.712701), (-725.287299, 2174.712701)])
sketch15.addConstraint(Sketcher.Constraint("Vertical", 0))
sketch15.addConstraint(Sketcher.Constraint("Horizontal", 1))
sketch15.addConstraint(Sketcher.Constraint("Vertical", 2))
sketch15.addConstraint(Sketcher.Constraint("Horizontal", 3))
sketch15.addConstraint(Sketcher.Constraint("Horizontal", 4))
sketch15.addConstraint(Sketcher.Constraint("Vertical", 5))
sketch15.addConstraint(Sketcher.Constraint("Horizontal", 6))
sketch15.addConstraint(Sketcher.Constraint("Vertical", 7))
sketch15.addConstraint(Sketcher.Constraint("Equal", 3, 0))
sketch15.addConstraint(Sketcher.Constraint("Equal", 6, 5))
sketch15.addConstraint(Sketcher.Constraint("DistanceX", 4, 2, 1, 2, Q("6.0010001 in")))
sketch15.addConstraint(Sketcher.Constraint("DistanceY", 4, 2, 3, 2, Q("6.0010001 in")))
sketch15.addConstraint(Sketcher.Constraint("DistanceY", 0, 2, 5, 2, Q("6.0010001 in")))
sketch15.addConstraint(Sketcher.Constraint("DistanceX", 0, 2, -1, 1, 877.712701))
sketch15.addConstraint(Sketcher.Constraint("DistanceY", -1, 1, 0, 2, 2022.287299))
sketch15.addConstraint(Sketcher.Constraint("DistanceX", 1, 2, -1, 1, 722.287299))
pad15 = body.newObject("PartDesign::Pad", "Pad014")
pad15.Profile = sketch15
pad15.setExpression("Length", "Params.pad15_length")

sketch16 = body.newObject("Sketcher::SketchObject", "Sketch015")
sketch16.AttachmentSupport = (doc.getObject("XY_Plane"), [""])
sketch16.MapMode = "FlatFace"
sketch16.AttachmentOffset = App.Placement(App.Vector(0, 0, -24.4994999 * 25.4), App.Rotation())
add_polygon(sketch16, [(722.287299, 2177.712701), (722.287299, 2022.287299), (877.712701, 2022.287299), (877.712701, 2177.712701)])
add_polygon(sketch16, [(874.712701, 2025.287299), (725.287299, 2025.287299), (725.287299, 2174.712701), (874.712701, 2174.712701)])
sketch16.addConstraint(Sketcher.Constraint("Vertical", 0))
sketch16.addConstraint(Sketcher.Constraint("Horizontal", 1))
sketch16.addConstraint(Sketcher.Constraint("Vertical", 2))
sketch16.addConstraint(Sketcher.Constraint("Horizontal", 3))
sketch16.addConstraint(Sketcher.Constraint("Horizontal", 4))
sketch16.addConstraint(Sketcher.Constraint("Vertical", 5))
sketch16.addConstraint(Sketcher.Constraint("Horizontal", 6))
sketch16.addConstraint(Sketcher.Constraint("Vertical", 7))
sketch16.addConstraint(Sketcher.Constraint("Equal", 3, 0))
sketch16.addConstraint(Sketcher.Constraint("Equal", 6, 5))
sketch16.addConstraint(Sketcher.Constraint("DistanceX", 4, 2, 1, 2, Q("6.0010001 in")))
sketch16.addConstraint(Sketcher.Constraint("DistanceY", 4, 2, 3, 2, Q("6.0010001 in")))
sketch16.addConstraint(Sketcher.Constraint("DistanceY", 0, 2, 5, 2, Q("6.0010001 in")))
sketch16.addConstraint(Sketcher.Constraint("DistanceX", -1, 1, 0, 2, 722.287299))
sketch16.addConstraint(Sketcher.Constraint("DistanceY", -1, 1, 0, 2, 2022.287299))
sketch16.addConstraint(Sketcher.Constraint("DistanceX", -1, 1, 1, 2, 877.712701))
pad16 = body.newObject("PartDesign::Pad", "Pad015")
pad16.Profile = sketch16
pad16.setExpression("Length", "Params.pad16_length")

doc.recompute()
